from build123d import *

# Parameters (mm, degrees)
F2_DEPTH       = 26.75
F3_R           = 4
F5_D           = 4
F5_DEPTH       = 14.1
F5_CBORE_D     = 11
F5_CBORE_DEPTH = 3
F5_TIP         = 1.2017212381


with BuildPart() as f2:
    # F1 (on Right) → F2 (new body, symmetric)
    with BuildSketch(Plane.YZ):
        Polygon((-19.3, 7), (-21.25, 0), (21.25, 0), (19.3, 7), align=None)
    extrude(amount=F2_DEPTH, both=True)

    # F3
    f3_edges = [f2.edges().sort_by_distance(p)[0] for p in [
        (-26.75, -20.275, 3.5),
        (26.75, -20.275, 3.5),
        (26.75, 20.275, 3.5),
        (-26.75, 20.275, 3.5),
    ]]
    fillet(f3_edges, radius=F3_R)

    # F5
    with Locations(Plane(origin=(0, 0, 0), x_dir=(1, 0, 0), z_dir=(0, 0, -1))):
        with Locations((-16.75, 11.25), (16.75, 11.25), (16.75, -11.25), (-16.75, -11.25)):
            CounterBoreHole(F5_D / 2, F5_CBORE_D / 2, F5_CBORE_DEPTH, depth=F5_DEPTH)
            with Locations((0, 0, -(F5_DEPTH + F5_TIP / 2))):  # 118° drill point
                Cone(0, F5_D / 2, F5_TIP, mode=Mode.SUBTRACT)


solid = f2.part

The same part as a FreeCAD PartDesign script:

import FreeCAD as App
import Part
import Sketcher
from FreeCAD import Vector
Q = App.Units.Quantity


def edges_at(feature, points):
    """Names of the edges that pass closest to the given points."""
    edges = feature.Shape.Edges
    near = lambda p: min(range(len(edges)), key=lambda i: edges[i].distToShape(Part.Vertex(*p))[0])
    return sorted({f"Edge{near(p) + 1}" for p in points})

doc = App.newDocument("Part")
body = doc.addObject("PartDesign::Body", "Body")

# Sketch on YZ plane
sketch1 = body.newObject("Sketcher::SketchObject", "Sketch")
sketch1.AttachmentSupport = (doc.getObject("YZ_Plane"), [""])
sketch1.MapMode = "FlatFace"
sketch1.addGeometry([
    Part.LineSegment(Vector(-19, 7, 0), Vector(-21, 0, 0)),
    Part.LineSegment(Vector(-21, 0, 0), Vector(21, 0, 0)),
    Part.LineSegment(Vector(21, 0, 0), Vector(19, 7, 0)),
    Part.LineSegment(Vector(19, 7, 0), Vector(-19, 7, 0)),
], False)
sketch1.addConstraint([
    Sketcher.Constraint("Coincident", 0, 2, 1, 1),
    Sketcher.Constraint("Coincident", 1, 2, 2, 1),
    Sketcher.Constraint("Coincident", 2, 2, 3, 1),
    Sketcher.Constraint("Coincident", 3, 2, 0, 1),
    Sketcher.Constraint("Horizontal", 1),
    Sketcher.Constraint("Horizontal", 3),
    Sketcher.Constraint("Symmetric", 0, 2, 1, 2, -1, 1),
    Sketcher.Constraint("Equal", 0, 2),
    Sketcher.Constraint("DistanceX", 1, 1, 1, 2, Q("42.5 mm")),
    Sketcher.Constraint("DistanceX", 3, 2, 3, 1, Q("38.6 mm")),
    Sketcher.Constraint("DistanceY", -1, 1, 2, 2, Q("7 mm")),
])
pad1 = body.newObject("PartDesign::Pad", "Pad")
pad1.Profile = sketch1
pad1.Length = 53.5
pad1.Midplane = True
doc.recompute()

fillet = body.newObject("PartDesign::Fillet", "Fillet")
fillet.Base = (pad1, edges_at(pad1, [
    (-26.75, -20.275, 3.5),
    (26.75, -20.275, 3.5),
    (26.75, 20.275, 3.5),
    (-26.75, 20.275, 3.5),
]))
fillet.Radius = 4

# Sketch on XY plane
sketch2 = body.newObject("Sketcher::SketchObject", "Sketch001")
sketch2.AttachmentSupport = (doc.getObject("XY_Plane"), [""])
sketch2.MapMode = "FlatFace"
sketch2.addGeometry([
    Part.Circle(Vector(-16.8, -11.2, 0), Vector(0, 0, 1), 2),
    Part.Circle(Vector(16.8, -11.2, 0), Vector(0, 0, 1), 2),
    Part.Circle(Vector(16.8, 11.2, 0), Vector(0, 0, 1), 2),
    Part.Circle(Vector(-16.8, 11.2, 0), Vector(0, 0, 1), 2),
], False)
sketch2.addConstraint([
    Sketcher.Constraint("Equal", 0, 1),
    Sketcher.Constraint("Equal", 1, 2),
    Sketcher.Constraint("Equal", 2, 3),
    Sketcher.Constraint("Symmetric", 0, 3, 2, 3, -1, 1),
    Sketcher.Constraint("Symmetric", 1, 3, 3, 3, -1, 1),
    Sketcher.Constraint("Symmetric", 0, 3, 1, 3, -2),
    Sketcher.Constraint("Diameter", 0, Q("4 mm")),
    Sketcher.Constraint("DistanceX", 0, 3, 1, 3, Q("33.5 mm")),
    Sketcher.Constraint("DistanceY", 1, 3, 2, 3, Q("22.5 mm")),
])
doc.recompute()
hole = body.newObject("PartDesign::Hole", "Hole")
hole.Profile = sketch2
hole.ThreadType = "None"
hole.Diameter = 4
hole.DepthType = "Dimension"
hole.Depth = 14.1
hole.DrillPoint = "Angled"
hole.DrillPointAngle = 118
hole.HoleCutType = "Counterbore"
hole.HoleCutDiameter = 11
hole.HoleCutDepth = 3
hole.Reversed = True

doc.recompute()
